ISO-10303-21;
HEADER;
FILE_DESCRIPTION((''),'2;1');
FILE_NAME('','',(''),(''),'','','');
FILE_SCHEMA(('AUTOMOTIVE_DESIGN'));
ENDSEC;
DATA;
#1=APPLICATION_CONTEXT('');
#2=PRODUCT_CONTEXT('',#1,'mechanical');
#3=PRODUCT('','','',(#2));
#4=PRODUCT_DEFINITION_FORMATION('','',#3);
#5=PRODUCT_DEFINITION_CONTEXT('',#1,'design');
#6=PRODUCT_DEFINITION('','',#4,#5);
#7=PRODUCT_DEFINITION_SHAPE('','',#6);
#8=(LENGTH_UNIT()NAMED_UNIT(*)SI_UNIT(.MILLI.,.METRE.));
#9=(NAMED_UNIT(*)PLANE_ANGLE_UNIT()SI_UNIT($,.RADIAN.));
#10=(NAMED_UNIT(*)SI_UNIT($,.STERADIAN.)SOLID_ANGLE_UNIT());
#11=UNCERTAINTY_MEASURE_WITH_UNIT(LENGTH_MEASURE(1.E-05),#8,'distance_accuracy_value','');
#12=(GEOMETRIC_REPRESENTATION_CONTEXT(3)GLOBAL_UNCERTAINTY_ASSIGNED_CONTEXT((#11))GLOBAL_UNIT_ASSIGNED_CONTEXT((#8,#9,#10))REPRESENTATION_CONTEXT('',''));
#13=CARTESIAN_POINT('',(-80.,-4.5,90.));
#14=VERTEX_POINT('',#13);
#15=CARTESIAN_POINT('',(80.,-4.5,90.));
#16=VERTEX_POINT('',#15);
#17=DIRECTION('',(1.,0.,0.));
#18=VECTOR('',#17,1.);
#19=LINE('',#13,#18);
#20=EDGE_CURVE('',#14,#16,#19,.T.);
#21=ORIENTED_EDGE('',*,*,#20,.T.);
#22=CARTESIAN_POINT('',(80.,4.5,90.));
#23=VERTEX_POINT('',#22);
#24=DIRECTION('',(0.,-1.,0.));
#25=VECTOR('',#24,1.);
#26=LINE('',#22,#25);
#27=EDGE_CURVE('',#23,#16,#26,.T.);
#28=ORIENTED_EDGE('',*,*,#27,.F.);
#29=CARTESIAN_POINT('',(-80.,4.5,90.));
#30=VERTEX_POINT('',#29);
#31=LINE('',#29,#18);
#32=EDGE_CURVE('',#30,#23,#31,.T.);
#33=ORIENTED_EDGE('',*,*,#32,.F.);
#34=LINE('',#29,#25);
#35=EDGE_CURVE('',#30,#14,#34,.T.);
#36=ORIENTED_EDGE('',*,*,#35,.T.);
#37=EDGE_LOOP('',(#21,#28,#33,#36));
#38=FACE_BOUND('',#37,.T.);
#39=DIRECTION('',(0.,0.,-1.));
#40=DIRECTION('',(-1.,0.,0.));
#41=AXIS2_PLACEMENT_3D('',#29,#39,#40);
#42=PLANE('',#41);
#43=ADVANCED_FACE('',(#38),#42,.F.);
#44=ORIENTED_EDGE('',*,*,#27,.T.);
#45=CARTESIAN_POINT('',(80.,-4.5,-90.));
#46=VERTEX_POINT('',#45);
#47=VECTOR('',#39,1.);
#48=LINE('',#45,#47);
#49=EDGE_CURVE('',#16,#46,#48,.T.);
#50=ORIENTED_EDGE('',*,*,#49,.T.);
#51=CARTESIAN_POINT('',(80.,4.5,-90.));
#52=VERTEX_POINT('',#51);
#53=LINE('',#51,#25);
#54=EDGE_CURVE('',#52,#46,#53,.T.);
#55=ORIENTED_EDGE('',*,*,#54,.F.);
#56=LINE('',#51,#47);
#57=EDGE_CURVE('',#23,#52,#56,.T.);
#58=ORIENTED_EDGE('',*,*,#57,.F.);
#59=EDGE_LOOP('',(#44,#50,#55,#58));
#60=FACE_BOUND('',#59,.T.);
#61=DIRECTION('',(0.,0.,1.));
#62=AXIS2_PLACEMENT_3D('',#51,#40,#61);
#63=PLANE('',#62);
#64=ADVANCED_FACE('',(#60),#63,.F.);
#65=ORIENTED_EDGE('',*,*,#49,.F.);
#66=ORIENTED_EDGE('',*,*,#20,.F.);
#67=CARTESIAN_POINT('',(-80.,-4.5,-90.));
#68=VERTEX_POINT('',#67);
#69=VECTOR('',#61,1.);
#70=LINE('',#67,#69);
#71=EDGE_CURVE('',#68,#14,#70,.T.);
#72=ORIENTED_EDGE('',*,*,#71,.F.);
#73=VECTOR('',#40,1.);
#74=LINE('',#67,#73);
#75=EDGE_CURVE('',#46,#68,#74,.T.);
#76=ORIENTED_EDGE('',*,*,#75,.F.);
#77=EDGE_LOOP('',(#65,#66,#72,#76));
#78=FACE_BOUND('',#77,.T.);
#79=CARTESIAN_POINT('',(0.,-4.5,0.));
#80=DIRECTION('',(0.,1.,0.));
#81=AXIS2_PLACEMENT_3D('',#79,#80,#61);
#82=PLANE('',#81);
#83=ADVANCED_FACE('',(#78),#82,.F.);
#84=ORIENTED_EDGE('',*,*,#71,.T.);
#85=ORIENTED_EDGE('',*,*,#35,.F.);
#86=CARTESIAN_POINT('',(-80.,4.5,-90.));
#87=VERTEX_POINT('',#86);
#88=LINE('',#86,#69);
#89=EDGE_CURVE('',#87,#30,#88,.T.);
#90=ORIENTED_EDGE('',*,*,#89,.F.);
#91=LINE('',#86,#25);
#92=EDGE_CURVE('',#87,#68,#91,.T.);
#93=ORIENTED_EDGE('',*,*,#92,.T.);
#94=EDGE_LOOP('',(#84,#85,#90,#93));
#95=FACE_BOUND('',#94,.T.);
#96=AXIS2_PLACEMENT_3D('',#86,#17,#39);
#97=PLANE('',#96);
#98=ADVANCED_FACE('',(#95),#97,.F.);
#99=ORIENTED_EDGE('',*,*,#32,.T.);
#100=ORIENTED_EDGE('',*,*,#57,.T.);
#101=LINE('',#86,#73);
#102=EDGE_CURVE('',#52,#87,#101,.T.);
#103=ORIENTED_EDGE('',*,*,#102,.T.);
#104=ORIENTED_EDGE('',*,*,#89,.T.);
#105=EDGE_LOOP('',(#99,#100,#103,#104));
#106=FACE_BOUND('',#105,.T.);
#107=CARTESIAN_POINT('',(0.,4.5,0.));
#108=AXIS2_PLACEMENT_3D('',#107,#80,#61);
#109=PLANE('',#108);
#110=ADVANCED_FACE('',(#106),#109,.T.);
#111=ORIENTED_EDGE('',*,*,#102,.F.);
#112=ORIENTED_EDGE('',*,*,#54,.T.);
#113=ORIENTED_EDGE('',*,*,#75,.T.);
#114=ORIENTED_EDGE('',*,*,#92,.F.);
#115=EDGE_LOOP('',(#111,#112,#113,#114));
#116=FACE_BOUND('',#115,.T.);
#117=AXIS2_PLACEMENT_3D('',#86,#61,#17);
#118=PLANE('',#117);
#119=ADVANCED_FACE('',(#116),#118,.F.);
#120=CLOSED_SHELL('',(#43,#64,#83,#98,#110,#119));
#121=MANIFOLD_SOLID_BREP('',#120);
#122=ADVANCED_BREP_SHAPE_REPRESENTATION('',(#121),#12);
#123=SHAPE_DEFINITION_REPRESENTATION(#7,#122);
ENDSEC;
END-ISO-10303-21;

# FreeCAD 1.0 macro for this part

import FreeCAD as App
import Part
import Sketcher

doc = App.newDocument("Part")
body = doc.addObject("PartDesign::Body", "Body")

# Sketch on XZ plane
sketch1 = body.newObject("Sketcher::SketchObject", "Sketch")
sketch1.AttachmentSupport = (doc.getObject("XZ_Plane"), [""])
sketch1.MapMode = "FlatFace"
sketch1.addGeometry([
    Part.LineSegment(App.Vector(-80, -90, 0), App.Vector(-80, 90, 0)),
    Part.LineSegment(App.Vector(-80, 90, 0), App.Vector(80, 90, 0)),
    Part.LineSegment(App.Vector(80, 90, 0), App.Vector(80, -90, 0)),
    Part.LineSegment(App.Vector(80, -90, 0), App.Vector(-80, -90, 0)),
], False)
sketch1.addConstraint([
    Sketcher.Constraint("Coincident", 0, 2, 1, 1),
    Sketcher.Constraint("Coincident", 1, 2, 2, 1),
    Sketcher.Constraint("Coincident", 2, 2, 3, 1),
    Sketcher.Constraint("Coincident", 3, 2, 0, 1),
    Sketcher.Constraint("Vertical", 0),
    Sketcher.Constraint("Horizontal", 1),
    Sketcher.Constraint("Vertical", 2),
    Sketcher.Constraint("Horizontal", 3),
    Sketcher.Constraint("Symmetric", 0, 2, 2, 2, -1, 1),
    Sketcher.Constraint("DistanceX", 1, 1, 1, 2, 160.0),
    Sketcher.Constraint("DistanceY", 0, 1, 0, 2, 180.0),
])
pad1 = body.newObject("PartDesign::Pad", "Pad")
pad1.Profile = sketch1
pad1.Length = 9
pad1.Midplane = True

doc.recompute()
